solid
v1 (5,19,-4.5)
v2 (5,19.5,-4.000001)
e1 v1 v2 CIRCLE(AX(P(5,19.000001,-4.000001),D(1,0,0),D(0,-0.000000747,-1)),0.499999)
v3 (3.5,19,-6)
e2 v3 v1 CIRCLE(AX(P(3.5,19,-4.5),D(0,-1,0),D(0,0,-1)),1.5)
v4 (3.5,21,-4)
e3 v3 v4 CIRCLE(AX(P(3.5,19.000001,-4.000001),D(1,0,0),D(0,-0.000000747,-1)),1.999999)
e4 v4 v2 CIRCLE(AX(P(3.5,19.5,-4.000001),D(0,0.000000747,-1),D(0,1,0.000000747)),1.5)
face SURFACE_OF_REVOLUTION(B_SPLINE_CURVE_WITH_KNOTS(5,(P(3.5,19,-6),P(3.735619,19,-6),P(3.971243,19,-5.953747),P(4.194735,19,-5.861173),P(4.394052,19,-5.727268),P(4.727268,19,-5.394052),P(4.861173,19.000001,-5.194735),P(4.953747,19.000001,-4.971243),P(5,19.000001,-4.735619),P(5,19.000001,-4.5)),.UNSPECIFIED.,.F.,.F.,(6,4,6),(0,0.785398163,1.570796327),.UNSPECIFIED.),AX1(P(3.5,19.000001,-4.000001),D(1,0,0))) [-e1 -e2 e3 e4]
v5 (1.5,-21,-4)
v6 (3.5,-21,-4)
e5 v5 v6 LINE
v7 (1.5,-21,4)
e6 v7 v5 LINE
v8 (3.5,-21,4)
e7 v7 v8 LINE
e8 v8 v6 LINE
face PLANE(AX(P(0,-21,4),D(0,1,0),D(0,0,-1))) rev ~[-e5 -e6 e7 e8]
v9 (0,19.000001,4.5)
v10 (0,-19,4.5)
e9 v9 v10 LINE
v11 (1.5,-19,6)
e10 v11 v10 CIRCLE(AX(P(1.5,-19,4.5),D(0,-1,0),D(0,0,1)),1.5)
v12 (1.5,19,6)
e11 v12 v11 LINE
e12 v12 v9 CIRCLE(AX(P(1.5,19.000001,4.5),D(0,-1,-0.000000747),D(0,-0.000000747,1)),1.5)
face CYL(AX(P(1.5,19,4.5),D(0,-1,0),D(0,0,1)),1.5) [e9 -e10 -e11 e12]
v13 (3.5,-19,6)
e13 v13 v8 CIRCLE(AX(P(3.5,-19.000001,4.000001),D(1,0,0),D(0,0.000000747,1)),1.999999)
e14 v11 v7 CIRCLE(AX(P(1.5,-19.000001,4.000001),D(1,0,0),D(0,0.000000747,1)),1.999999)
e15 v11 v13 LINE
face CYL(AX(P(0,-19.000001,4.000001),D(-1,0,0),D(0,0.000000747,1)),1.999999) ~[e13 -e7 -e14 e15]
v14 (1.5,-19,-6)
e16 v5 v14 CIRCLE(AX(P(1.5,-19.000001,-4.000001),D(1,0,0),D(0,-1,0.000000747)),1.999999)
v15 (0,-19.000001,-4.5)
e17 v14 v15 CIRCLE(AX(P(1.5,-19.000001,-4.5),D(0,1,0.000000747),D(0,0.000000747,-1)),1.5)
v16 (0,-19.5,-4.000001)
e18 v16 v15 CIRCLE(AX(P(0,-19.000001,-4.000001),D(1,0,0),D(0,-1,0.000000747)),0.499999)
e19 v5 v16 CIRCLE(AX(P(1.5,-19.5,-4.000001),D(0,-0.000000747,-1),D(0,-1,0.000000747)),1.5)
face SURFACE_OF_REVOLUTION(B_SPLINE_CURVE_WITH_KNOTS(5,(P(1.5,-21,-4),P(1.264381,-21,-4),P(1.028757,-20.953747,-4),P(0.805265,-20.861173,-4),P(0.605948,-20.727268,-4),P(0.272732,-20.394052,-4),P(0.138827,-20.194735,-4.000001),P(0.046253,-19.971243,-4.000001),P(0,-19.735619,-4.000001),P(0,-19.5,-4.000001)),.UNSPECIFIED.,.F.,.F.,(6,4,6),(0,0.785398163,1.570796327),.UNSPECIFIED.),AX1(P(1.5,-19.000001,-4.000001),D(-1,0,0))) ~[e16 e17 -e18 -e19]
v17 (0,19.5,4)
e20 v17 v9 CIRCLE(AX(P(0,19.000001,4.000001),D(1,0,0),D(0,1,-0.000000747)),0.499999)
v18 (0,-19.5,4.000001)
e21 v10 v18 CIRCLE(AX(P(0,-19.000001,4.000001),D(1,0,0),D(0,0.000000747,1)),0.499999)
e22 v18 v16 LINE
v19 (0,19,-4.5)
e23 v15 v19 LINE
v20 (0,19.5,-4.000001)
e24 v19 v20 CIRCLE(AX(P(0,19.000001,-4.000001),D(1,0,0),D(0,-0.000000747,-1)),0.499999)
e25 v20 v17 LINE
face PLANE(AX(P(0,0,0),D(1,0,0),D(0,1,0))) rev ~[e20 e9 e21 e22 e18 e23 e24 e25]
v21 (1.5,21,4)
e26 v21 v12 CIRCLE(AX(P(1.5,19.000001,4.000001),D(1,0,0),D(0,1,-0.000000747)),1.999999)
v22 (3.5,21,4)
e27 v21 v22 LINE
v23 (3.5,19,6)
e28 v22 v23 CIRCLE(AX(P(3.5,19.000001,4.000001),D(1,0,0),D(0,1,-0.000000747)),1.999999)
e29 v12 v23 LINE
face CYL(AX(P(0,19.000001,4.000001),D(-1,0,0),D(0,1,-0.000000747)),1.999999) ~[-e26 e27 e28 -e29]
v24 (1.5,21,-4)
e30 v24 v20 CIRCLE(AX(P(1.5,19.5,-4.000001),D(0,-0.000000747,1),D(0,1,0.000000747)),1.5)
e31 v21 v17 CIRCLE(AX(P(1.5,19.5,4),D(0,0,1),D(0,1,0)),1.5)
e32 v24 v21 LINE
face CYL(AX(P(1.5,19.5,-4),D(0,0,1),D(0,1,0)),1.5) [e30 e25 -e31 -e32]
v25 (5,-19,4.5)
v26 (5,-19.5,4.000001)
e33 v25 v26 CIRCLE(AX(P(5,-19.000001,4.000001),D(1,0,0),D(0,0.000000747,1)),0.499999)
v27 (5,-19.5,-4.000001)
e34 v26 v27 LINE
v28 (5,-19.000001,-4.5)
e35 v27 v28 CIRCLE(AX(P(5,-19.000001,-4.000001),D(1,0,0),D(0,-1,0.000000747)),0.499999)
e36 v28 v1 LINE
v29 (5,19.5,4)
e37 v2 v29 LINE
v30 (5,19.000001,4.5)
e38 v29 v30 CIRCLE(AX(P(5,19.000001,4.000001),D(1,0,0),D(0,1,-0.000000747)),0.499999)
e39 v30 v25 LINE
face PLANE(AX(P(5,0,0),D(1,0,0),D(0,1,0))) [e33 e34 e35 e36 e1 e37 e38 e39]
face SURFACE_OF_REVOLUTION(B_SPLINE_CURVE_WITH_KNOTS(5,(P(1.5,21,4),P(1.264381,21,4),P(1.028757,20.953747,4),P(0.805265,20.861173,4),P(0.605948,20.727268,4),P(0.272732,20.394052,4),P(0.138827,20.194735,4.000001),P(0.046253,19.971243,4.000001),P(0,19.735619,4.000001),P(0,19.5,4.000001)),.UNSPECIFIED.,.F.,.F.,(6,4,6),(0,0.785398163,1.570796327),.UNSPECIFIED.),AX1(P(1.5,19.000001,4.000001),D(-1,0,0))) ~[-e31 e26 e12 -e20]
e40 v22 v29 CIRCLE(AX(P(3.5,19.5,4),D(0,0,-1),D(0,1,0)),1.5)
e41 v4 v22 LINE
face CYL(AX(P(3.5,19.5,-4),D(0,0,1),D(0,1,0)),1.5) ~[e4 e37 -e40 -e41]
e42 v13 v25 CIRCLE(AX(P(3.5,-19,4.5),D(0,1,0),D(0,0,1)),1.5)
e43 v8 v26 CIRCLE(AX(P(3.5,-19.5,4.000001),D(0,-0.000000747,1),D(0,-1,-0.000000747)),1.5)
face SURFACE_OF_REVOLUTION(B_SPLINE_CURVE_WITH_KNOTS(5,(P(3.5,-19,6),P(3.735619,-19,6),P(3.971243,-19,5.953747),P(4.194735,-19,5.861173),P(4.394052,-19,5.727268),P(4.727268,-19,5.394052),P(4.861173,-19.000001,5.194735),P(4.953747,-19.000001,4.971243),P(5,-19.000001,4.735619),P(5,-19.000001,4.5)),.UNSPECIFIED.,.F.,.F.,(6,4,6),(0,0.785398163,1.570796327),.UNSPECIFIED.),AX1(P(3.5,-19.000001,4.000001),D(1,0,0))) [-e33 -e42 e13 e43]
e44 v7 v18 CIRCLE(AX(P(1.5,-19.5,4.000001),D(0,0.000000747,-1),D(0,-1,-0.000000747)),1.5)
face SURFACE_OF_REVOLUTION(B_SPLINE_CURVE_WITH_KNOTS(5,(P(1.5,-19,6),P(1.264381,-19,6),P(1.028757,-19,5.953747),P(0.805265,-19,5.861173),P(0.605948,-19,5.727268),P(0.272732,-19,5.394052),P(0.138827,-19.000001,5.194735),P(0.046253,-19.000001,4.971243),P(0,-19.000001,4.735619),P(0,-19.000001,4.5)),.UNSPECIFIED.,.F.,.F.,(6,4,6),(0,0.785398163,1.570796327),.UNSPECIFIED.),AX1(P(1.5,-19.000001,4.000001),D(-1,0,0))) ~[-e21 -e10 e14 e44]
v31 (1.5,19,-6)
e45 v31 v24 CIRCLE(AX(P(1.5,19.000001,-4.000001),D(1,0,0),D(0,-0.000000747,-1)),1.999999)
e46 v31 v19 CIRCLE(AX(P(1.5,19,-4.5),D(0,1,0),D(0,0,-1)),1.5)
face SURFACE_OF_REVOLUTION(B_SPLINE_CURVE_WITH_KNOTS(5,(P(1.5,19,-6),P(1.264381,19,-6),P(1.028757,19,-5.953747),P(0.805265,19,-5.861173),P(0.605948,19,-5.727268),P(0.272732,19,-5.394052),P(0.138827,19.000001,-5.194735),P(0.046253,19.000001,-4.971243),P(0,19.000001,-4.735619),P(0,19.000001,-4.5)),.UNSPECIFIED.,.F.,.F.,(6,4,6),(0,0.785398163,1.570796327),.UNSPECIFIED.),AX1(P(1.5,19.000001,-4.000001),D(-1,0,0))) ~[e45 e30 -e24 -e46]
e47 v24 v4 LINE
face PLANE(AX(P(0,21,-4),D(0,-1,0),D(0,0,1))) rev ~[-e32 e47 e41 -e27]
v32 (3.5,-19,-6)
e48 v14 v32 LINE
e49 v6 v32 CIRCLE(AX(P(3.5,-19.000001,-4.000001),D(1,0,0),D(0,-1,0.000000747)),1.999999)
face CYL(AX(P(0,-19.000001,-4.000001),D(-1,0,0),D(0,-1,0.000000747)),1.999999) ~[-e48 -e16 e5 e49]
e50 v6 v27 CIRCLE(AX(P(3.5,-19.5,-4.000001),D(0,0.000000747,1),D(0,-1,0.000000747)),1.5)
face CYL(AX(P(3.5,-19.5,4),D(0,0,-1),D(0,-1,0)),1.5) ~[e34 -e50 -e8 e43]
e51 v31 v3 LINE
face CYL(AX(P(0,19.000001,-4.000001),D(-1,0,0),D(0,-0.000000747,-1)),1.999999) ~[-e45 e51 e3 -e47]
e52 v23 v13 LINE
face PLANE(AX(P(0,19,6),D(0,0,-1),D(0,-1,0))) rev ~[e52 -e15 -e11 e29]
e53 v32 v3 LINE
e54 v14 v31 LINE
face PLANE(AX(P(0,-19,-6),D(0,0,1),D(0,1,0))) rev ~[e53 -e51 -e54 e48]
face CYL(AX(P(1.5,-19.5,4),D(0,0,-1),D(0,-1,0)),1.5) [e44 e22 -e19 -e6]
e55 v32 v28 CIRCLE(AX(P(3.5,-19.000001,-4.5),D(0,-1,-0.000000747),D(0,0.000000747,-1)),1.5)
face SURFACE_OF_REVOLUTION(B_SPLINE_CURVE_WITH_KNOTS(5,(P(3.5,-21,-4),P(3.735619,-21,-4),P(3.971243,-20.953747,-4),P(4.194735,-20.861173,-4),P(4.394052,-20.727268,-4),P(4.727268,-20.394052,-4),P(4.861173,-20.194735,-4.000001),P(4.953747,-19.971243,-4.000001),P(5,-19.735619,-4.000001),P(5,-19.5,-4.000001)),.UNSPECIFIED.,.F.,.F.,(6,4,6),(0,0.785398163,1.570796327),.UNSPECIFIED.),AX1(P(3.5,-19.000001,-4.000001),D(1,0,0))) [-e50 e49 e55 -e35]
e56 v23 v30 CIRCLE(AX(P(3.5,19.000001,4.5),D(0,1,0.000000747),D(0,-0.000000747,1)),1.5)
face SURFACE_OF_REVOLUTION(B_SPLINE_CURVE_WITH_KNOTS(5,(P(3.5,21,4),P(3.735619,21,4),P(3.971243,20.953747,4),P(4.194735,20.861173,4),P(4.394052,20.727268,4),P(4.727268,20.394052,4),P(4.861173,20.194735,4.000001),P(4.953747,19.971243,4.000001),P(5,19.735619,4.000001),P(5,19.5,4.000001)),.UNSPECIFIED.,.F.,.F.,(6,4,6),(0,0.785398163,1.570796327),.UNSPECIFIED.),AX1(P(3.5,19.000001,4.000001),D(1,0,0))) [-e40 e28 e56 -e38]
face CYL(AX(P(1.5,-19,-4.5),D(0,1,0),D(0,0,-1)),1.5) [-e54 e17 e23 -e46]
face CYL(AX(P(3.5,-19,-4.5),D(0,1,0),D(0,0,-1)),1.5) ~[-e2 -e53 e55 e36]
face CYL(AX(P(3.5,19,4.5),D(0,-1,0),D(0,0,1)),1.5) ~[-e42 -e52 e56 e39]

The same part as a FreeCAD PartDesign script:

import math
import FreeCAD as App
import Part
import Sketcher
from FreeCAD import Vector
Q = App.Units.Quantity


def edges_at(feature, points):
    """Names of the edges that pass closest to the given points."""
    edges = feature.Shape.Edges
    near = lambda p: min(range(len(edges)), key=lambda i: edges[i].distToShape(Part.Vertex(*p))[0])
    return sorted({f"Edge{near(p) + 1}" for p in points})

doc = App.newDocument("Part")
body = doc.addObject("PartDesign::Body", "Body")

# Sketch on YZ plane
sketch1 = body.newObject("Sketcher::SketchObject", "Sketch")
sketch1.AttachmentSupport = (doc.getObject("YZ_Plane"), [""])
sketch1.MapMode = "FlatFace"
sketch1.addGeometry([
    Part.LineSegment(Vector(-19, -6, 0), Vector(19, -6, 0)),  # 0
    Part.ArcOfCircle(Part.Circle(Vector(19, -4, 0), Vector(0, 0, 1), 2), math.radians(-90), math.radians(0)),  # 1
    Part.LineSegment(Vector(21, -4, 0), Vector(21, 4, 0)),  # 2
    Part.ArcOfCircle(Part.Circle(Vector(19, 4, 0), Vector(0, 0, 1), 2), math.radians(0), math.radians(90)),  # 3
    Part.LineSegment(Vector(19, 6, 0), Vector(-19, 6, 0)),  # 4
    Part.ArcOfCircle(Part.Circle(Vector(-19, 4, 0), Vector(0, 0, 1), 2), math.radians(90), math.radians(180)),  # 5
    Part.LineSegment(Vector(-21, 4, 0), Vector(-21, -4, 0)),  # 6
    Part.ArcOfCircle(Part.Circle(Vector(-19, -4, 0), Vector(0, 0, 1), 2), math.radians(180), math.radians(270)),  # 7
], False)
sketch1.addConstraint([
    Sketcher.Constraint("Tangent", 0, 2, 1, 1),
    Sketcher.Constraint("Tangent", 1, 2, 2, 1),
    Sketcher.Constraint("Tangent", 2, 2, 3, 1),
    Sketcher.Constraint("Tangent", 3, 2, 4, 1),
    Sketcher.Constraint("Tangent", 4, 2, 5, 1),
    Sketcher.Constraint("Tangent", 5, 2, 6, 1),
    Sketcher.Constraint("Tangent", 6, 2, 7, 1),
    Sketcher.Constraint("Tangent", 7, 2, 0, 1),
    Sketcher.Constraint("Horizontal", 0),
    Sketcher.Constraint("Vertical", 2),
    Sketcher.Constraint("Horizontal", 4),
    Sketcher.Constraint("Vertical", 6),
    Sketcher.Constraint("Equal", 1, 3),
    Sketcher.Constraint("Equal", 3, 5),
    Sketcher.Constraint("Equal", 5, 7),
    Sketcher.Constraint("Symmetric", 1, 3, 5, 3, -1, 1),
    Sketcher.Constraint("Radius", 1, Q("1.999999 mm")),
    Sketcher.Constraint("DistanceX", 0, 1, 0, 2, Q("38 mm")),
    Sketcher.Constraint("DistanceY", 2, 1, 2, 2, Q("8 mm")),
])
pad1 = body.newObject("PartDesign::Pad", "Pad")
pad1.Profile = sketch1
pad1.Length = 5
doc.recompute()

fillet = body.newObject("PartDesign::Fillet", "Fillet")
fillet.Base = (pad1, edges_at(pad1, [(5, -20.414, -5.414), (0, -20.414, -5.414)]))
fillet.Radius = 1.5

doc.recompute()
